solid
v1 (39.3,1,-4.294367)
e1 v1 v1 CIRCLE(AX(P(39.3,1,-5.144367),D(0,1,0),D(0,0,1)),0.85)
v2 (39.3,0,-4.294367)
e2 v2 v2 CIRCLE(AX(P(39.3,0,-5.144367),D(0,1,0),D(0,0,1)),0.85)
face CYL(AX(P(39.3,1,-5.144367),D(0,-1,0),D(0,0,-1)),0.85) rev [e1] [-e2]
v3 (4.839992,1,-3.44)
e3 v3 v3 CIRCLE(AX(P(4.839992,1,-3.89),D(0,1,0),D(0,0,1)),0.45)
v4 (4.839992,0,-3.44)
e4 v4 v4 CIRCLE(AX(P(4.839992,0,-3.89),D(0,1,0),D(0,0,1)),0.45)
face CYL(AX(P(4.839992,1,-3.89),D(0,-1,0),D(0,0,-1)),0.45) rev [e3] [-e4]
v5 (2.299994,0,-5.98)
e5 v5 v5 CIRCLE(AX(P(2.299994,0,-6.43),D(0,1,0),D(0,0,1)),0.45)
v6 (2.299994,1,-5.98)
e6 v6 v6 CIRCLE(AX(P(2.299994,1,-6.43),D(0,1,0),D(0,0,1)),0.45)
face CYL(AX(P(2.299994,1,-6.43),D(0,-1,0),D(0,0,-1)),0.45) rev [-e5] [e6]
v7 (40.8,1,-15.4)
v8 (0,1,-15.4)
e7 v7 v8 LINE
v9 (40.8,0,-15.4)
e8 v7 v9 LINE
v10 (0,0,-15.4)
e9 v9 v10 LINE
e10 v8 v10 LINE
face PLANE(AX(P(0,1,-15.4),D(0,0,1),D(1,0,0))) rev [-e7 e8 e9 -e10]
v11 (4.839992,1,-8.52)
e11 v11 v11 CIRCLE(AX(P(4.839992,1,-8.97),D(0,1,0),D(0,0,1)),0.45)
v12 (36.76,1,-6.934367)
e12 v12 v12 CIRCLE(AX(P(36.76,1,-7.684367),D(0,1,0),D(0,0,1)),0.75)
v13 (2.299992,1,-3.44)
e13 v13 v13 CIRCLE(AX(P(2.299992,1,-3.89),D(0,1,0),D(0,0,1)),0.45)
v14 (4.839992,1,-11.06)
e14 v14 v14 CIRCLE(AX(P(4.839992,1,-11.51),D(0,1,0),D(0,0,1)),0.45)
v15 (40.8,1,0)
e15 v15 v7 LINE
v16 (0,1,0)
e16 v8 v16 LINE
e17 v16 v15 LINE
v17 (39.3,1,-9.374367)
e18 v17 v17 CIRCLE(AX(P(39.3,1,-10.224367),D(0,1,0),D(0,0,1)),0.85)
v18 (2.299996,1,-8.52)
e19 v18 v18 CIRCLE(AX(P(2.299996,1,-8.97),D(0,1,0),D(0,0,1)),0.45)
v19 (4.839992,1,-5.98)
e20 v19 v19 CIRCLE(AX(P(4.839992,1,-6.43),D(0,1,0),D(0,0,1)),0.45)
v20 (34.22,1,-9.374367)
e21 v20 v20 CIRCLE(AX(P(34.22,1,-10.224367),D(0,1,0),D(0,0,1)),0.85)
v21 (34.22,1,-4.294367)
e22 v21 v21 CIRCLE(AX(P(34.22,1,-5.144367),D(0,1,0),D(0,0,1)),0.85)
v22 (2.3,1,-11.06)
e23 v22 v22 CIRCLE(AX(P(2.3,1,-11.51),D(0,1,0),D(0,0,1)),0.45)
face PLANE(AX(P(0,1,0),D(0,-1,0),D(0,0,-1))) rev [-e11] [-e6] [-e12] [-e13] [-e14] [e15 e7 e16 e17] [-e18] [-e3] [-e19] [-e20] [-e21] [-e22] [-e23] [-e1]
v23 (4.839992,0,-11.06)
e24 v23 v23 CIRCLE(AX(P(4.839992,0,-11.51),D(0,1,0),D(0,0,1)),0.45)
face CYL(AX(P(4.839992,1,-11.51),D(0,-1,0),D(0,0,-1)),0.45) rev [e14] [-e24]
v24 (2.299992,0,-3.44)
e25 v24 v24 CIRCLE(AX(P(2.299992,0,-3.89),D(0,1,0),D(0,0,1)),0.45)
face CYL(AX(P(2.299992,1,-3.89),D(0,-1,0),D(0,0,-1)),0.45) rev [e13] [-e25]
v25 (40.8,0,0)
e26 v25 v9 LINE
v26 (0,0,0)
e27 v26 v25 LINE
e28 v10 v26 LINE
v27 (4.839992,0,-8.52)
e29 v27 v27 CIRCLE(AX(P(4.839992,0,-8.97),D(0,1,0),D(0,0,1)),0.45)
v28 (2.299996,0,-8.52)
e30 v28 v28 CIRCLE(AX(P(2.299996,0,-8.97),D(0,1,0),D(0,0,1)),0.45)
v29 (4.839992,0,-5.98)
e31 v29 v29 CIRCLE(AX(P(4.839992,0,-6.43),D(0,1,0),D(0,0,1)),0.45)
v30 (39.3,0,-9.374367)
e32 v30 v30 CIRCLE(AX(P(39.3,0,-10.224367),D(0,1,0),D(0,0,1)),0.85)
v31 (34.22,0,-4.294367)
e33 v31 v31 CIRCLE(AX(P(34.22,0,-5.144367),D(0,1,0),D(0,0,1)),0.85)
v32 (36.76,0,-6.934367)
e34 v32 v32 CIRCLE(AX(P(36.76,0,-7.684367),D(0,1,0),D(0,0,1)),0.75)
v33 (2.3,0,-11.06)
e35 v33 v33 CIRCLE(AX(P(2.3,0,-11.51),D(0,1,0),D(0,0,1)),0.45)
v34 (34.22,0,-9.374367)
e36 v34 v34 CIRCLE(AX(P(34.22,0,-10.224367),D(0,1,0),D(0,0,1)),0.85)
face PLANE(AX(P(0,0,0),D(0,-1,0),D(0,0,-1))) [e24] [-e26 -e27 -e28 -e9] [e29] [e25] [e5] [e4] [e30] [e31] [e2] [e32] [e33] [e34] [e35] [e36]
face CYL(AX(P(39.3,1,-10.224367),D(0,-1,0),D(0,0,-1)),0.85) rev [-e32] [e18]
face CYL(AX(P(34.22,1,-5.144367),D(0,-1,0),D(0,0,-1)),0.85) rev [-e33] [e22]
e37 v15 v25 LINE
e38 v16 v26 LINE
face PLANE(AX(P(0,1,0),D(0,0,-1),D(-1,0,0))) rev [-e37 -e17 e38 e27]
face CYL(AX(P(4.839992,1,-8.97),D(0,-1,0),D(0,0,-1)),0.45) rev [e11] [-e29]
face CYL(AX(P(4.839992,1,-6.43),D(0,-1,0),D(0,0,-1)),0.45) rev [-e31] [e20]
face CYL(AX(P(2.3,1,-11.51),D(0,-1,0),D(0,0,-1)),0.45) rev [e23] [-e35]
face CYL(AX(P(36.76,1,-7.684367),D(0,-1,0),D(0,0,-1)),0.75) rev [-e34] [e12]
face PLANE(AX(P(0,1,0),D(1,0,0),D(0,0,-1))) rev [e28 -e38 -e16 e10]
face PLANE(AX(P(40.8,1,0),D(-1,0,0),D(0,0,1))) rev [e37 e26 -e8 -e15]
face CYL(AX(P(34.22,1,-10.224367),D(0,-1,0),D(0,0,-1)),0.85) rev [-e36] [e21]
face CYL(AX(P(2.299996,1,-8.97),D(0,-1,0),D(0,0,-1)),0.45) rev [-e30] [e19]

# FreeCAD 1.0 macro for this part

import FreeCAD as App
import Part
import Sketcher
from FreeCAD import Vector
Q = App.Units.Quantity

doc = App.newDocument("Part")
params = doc.addObject("Spreadsheet::Sheet", "Params")
for row, (alias, value) in enumerate([
    ("sketch1_diameter", "0.9 mm"),
    ("sketch1_diameter2", "1.7 mm"),
    ("sketch1_diameter3", "1.5 mm"),
    ("sketch1_width", "40.8 mm"),
    ("sketch1_height", "15.4 mm"),
    ("pad1_length", "1 mm"),
], start=1):
    params.set(f"A{row}", alias)
    params.set(f"B{row}", "=" + value)
    params.setAlias(f"B{row}", alias)

body = doc.addObject("PartDesign::Body", "Body")

# Sketch on XZ plane
sketch1 = body.newObject("Sketcher::SketchObject", "Sketch")
sketch1.AttachmentSupport = (doc.getObject("XZ_Plane"), [""])
sketch1.MapMode = "FlatFace"
sketch1.addGeometry([
    Part.LineSegment(Vector(0, -15.4, 0), Vector(0, 0, 0)),  # 0
    Part.LineSegment(Vector(0, 0, 0), Vector(40.8, 0, 0)),  # 1
    Part.LineSegment(Vector(40.8, 0, 0), Vector(40.8, -15.4, 0)),  # 2
    Part.LineSegment(Vector(40.8, -15.4, 0), Vector(0, -15.4, 0)),  # 3
    Part.Circle(Vector(2.299992, -3.89, 0), Vector(0, 0, 1), 0.45),  # 4
    Part.Circle(Vector(4.839992, -3.89, 0), Vector(0, 0, 1), 0.45),  # 5
    Part.Circle(Vector(2.299994, -6.43, 0), Vector(0, 0, 1), 0.45),  # 6
    Part.Circle(Vector(4.839992, -6.43, 0), Vector(0, 0, 1), 0.45),  # 7
    Part.Circle(Vector(34.22, -5.144367, 0), Vector(0, 0, 1), 0.85),  # 8
    Part.Circle(Vector(39.3, -5.144367, 0), Vector(0, 0, 1), 0.85),  # 9
    Part.Circle(Vector(36.76, -7.684367, 0), Vector(0, 0, 1), 0.75),  # 10
    Part.Circle(Vector(2.299996, -8.97, 0), Vector(0, 0, 1), 0.45),  # 11
    Part.Circle(Vector(4.839992, -8.97, 0), Vector(0, 0, 1), 0.45),  # 12
    Part.Circle(Vector(2.3, -11.51, 0), Vector(0, 0, 1), 0.45),  # 13
    Part.Circle(Vector(4.839992, -11.51, 0), Vector(0, 0, 1), 0.45),  # 14
    Part.Circle(Vector(34.22, -10.224367, 0), Vector(0, 0, 1), 0.85),  # 15
    Part.Circle(Vector(39.3, -10.224367, 0), Vector(0, 0, 1), 0.85),  # 16
], False)
sketch1.addConstraint([
    Sketcher.Constraint("Coincident", 0, 2, 1, 1),
    Sketcher.Constraint("Coincident", 1, 2, 2, 1),
    Sketcher.Constraint("Coincident", 2, 2, 3, 1),
    Sketcher.Constraint("Coincident", 3, 2, 0, 1),
    Sketcher.Constraint("Vertical", 0),
    Sketcher.Constraint("Horizontal", 1),
    Sketcher.Constraint("Vertical", 2),
    Sketcher.Constraint("Horizontal", 3),
    Sketcher.Constraint("Coincident", 0, 2, -1, 1),
    Sketcher.Constraint("Equal", 4, 5),
    Sketcher.Constraint("Equal", 5, 6),
    Sketcher.Constraint("Equal", 6, 7),
    Sketcher.Constraint("Equal", 8, 9),
    Sketcher.Constraint("Equal", 7, 11),
    Sketcher.Constraint("Equal", 11, 12),
    Sketcher.Constraint("Equal", 12, 13),
    Sketcher.Constraint("Equal", 13, 14),
    Sketcher.Constraint("Equal", 9, 15),
    Sketcher.Constraint("Equal", 15, 16),
    Sketcher.Constraint("Horizontal", 4, 3, 5, 3),
    Sketcher.Constraint("Horizontal", 6, 3, 7, 3),
    Sketcher.Constraint("Horizontal", 8, 3, 9, 3),
    Sketcher.Constraint("Horizontal", 11, 3, 12, 3),
    Sketcher.Constraint("Horizontal", 13, 3, 14, 3),
    Sketcher.Constraint("Horizontal", 15, 3, 16, 3),
    Sketcher.Constraint("Vertical", 4, 3, 6, 3),
    Sketcher.Constraint("Vertical", 5, 3, 7, 3),
    Sketcher.Constraint("Vertical", 6, 3, 11, 3),
    Sketcher.Constraint("Vertical", 7, 3, 12, 3),
    Sketcher.Constraint("Vertical", 12, 3, 14, 3),
    Sketcher.Constraint("Vertical", 8, 3, 15, 3),
    Sketcher.Constraint("Vertical", 9, 3, 16, 3),
    Sketcher.Constraint("Diameter", 4, Q("0.9 mm")),
    Sketcher.Constraint("Diameter", 8, Q("1.7 mm")),
    Sketcher.Constraint("Diameter", 10, Q("1.5 mm")),
    Sketcher.Constraint("DistanceX", 1, 1, 1, 2, Q("40.8 mm")),
    Sketcher.Constraint("DistanceY", 0, 1, 0, 2, Q("15.4 mm")),
    Sketcher.Constraint("DistanceX", -1, 1, 9, 3, Q("39.3 mm")),
    Sketcher.Constraint("DistanceX", -1, 1, 13, 3, Q("2.3 mm")),
    Sketcher.Constraint("DistanceY", 4, 3, -1, 1, Q("3.89 mm")),
    Sketcher.Constraint("DistanceY", 6, 3, -1, 1, Q("6.43 mm")),
    Sketcher.Constraint("DistanceX", -1, 1, 8, 3, Q("34.22 mm")),
    Sketcher.Constraint("DistanceX", -1, 1, 10, 3, Q("36.76 mm")),
    Sketcher.Constraint("DistanceY", 11, 3, -1, 1, Q("8.97 mm")),
    Sketcher.Constraint("DistanceY", 13, 3, -1, 1, Q("11.51 mm")),
    Sketcher.Constraint("DistanceX", 4, 3, 5, 3, Q("2.54 mm")),
    Sketcher.Constraint("DistanceY", 10, 3, 8, 3, Q("2.54 mm")),
    Sketcher.Constraint("DistanceY", 15, 3, 10, 3, Q("2.54 mm")),
    Sketcher.Constraint("DistanceX", -1, 1, 4, 3, Q("2.299992 mm")),
    Sketcher.Constraint("DistanceY", 8, 3, -1, 1, Q("5.144367 mm")),
])
sketch1.setExpression("Constraints[32]", "Params.sketch1_diameter")
sketch1.setExpression("Constraints[33]", "Params.sketch1_diameter2")
sketch1.setExpression("Constraints[34]", "Params.sketch1_diameter3")
sketch1.setExpression("Constraints[35]", "Params.sketch1_width")
sketch1.setExpression("Constraints[36]", "Params.sketch1_height")
pad1 = body.newObject("PartDesign::Pad", "Pad")
pad1.Profile = sketch1
pad1.setExpression("Length", "Params.pad1_length")
pad1.Reversed = True

doc.recompute()
